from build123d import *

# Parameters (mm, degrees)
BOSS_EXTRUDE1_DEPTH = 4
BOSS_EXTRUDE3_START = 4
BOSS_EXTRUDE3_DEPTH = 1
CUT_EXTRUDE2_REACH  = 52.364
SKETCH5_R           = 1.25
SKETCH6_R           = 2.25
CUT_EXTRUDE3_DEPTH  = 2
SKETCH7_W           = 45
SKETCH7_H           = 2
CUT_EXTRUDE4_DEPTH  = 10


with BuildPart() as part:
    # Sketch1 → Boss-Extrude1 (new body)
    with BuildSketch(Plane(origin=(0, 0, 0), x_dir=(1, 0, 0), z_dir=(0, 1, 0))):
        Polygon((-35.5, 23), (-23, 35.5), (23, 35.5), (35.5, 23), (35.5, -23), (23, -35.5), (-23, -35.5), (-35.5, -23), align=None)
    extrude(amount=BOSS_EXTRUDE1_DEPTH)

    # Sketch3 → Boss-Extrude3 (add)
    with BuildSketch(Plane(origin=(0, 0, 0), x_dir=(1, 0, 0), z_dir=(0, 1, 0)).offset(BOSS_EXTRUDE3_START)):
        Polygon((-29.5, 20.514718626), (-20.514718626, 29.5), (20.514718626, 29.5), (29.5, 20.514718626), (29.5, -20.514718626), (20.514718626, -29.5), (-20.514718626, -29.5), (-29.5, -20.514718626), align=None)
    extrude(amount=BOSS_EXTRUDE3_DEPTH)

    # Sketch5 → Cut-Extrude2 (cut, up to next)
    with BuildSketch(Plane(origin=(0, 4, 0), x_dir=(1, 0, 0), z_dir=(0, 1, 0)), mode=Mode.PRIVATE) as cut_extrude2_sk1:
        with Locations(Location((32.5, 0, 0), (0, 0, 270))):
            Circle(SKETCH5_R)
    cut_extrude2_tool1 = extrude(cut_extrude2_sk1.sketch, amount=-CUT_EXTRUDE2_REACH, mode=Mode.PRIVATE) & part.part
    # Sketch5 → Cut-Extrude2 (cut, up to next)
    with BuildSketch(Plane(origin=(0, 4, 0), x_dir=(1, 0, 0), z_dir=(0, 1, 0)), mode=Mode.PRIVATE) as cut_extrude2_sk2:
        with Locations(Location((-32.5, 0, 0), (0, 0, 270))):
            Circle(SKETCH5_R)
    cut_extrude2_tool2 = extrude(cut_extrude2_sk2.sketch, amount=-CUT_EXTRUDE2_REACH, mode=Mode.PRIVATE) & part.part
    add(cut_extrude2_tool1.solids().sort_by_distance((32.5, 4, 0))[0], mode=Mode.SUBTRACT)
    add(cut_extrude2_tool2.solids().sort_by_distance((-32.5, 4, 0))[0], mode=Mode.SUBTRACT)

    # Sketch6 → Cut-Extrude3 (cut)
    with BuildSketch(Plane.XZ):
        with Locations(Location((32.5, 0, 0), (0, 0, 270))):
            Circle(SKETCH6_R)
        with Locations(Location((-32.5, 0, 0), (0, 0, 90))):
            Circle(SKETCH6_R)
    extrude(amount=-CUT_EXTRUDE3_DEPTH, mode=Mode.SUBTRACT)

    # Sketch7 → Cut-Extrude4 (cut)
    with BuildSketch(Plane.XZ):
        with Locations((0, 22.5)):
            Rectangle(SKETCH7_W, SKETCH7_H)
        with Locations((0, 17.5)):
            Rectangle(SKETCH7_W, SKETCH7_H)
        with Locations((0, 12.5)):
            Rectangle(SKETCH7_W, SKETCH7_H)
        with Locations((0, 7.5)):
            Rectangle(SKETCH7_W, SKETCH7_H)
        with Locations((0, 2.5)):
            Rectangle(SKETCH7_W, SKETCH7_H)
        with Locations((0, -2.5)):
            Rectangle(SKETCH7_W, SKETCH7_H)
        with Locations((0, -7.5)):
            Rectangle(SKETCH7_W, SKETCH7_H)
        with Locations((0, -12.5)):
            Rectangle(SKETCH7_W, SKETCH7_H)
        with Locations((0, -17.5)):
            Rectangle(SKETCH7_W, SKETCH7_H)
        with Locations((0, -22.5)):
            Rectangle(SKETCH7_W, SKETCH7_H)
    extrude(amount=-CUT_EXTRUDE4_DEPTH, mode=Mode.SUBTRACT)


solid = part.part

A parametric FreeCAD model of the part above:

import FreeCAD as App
import Part
import Sketcher
Q = App.Units.Quantity

doc = App.newDocument("Part")
body = doc.addObject("PartDesign::Body", "Body")

# Sketch on XZ plane
sketch1 = body.newObject("Sketcher::SketchObject", "Sketch")
sketch1.AttachmentSupport = (doc.getObject("XZ_Plane"), [""])
sketch1.MapMode = "FlatFace"
sketch1.addGeometry(Part.LineSegment(App.Vector(-23, -36, 0), App.Vector(-36, -23, 0)), False)
sketch1.addGeometry(Part.LineSegment(App.Vector(-36, -23, 0), App.Vector(-36, 23, 0)), False)
sketch1.addGeometry(Part.LineSegment(App.Vector(-36, 23, 0), App.Vector(-23, 36, 0)), False)
sketch1.addGeometry(Part.LineSegment(App.Vector(-23, 36, 0), App.Vector(23, 36, 0)), False)
sketch1.addGeometry(Part.LineSegment(App.Vector(23, 36, 0), App.Vector(36, 23, 0)), False)
sketch1.addGeometry(Part.LineSegment(App.Vector(36, 23, 0), App.Vector(36, -23, 0)), False)
sketch1.addGeometry(Part.LineSegment(App.Vector(36, -23, 0), App.Vector(23, -36, 0)), False)
sketch1.addGeometry(Part.LineSegment(App.Vector(23, -36, 0), App.Vector(-23, -36, 0)), False)
sketch1.addConstraint(Sketcher.Constraint("Coincident", 0, 2, 1, 1))
sketch1.addConstraint(Sketcher.Constraint("Coincident", 1, 2, 2, 1))
sketch1.addConstraint(Sketcher.Constraint("Coincident", 2, 2, 3, 1))
sketch1.addConstraint(Sketcher.Constraint("Coincident", 3, 2, 4, 1))
sketch1.addConstraint(Sketcher.Constraint("Coincident", 4, 2, 5, 1))
sketch1.addConstraint(Sketcher.Constraint("Coincident", 5, 2, 6, 1))
sketch1.addConstraint(Sketcher.Constraint("Coincident", 6, 2, 7, 1))
sketch1.addConstraint(Sketcher.Constraint("Coincident", 7, 2, 0, 1))
sketch1.addConstraint(Sketcher.Constraint("Vertical", 1))
sketch1.addConstraint(Sketcher.Constraint("Horizontal", 3))
sketch1.addConstraint(Sketcher.Constraint("Vertical", 5))
sketch1.addConstraint(Sketcher.Constraint("Horizontal", 7))
sketch1.addConstraint(Sketcher.Constraint("Symmetric", 0, 2, 4, 2, -1, 1))
sketch1.addConstraint(Sketcher.Constraint("Symmetric", 2, 2, 6, 2, -1, 1))
sketch1.addConstraint(Sketcher.Constraint("Perpendicular", 0, 2))
sketch1.addConstraint(Sketcher.Constraint("Perpendicular", 2, 4))
sketch1.addConstraint(Sketcher.Constraint("Perpendicular", 4, 6))
sketch1.addConstraint(Sketcher.Constraint("Horizontal", 1, 2, 4, 2))
sketch1.addConstraint(Sketcher.Constraint("Vertical", 3, 2, 6, 2))
sketch1.addConstraint(Sketcher.Constraint("Equal", 7, 1))
sketch1.addConstraint(Sketcher.Constraint("DistanceX", 3, 1, 3, 2, Q("46 mm")))
sketch1.addConstraint(Sketcher.Constraint("DistanceX", 1, 2, 4, 2, Q("71 mm")))
pad1 = body.newObject("PartDesign::Pad", "Pad")
pad1.Profile = sketch1
pad1.Length = 4
pad1.Reversed = True

# Sketch on XZ plane
sketch2 = body.newObject("Sketcher::SketchObject", "Sketch001")
sketch2.AttachmentSupport = (doc.getObject("XZ_Plane"), [""])
sketch2.MapMode = "FlatFace"
sketch2.AttachmentOffset = App.Placement(App.Vector(0, 0, -4), App.Rotation())
sketch2.addGeometry(Part.LineSegment(App.Vector(-21, -30, 0), App.Vector(-30, -21, 0)), False)
sketch2.addGeometry(Part.LineSegment(App.Vector(-30, -21, 0), App.Vector(-30, 21, 0)), False)
sketch2.addGeometry(Part.LineSegment(App.Vector(-30, 21, 0), App.Vector(-21, 30, 0)), False)
sketch2.addGeometry(Part.LineSegment(App.Vector(-21, 30, 0), App.Vector(21, 30, 0)), False)
sketch2.addGeometry(Part.LineSegment(App.Vector(21, 30, 0), App.Vector(30, 21, 0)), False)
sketch2.addGeometry(Part.LineSegment(App.Vector(30, 21, 0), App.Vector(30, -21, 0)), False)
sketch2.addGeometry(Part.LineSegment(App.Vector(30, -21, 0), App.Vector(21, -30, 0)), False)
sketch2.addGeometry(Part.LineSegment(App.Vector(21, -30, 0), App.Vector(-21, -30, 0)), False)
sketch2.addConstraint(Sketcher.Constraint("Coincident", 0, 2, 1, 1))
sketch2.addConstraint(Sketcher.Constraint("Coincident", 1, 2, 2, 1))
sketch2.addConstraint(Sketcher.Constraint("Coincident", 2, 2, 3, 1))
sketch2.addConstraint(Sketcher.Constraint("Coincident", 3, 2, 4, 1))
sketch2.addConstraint(Sketcher.Constraint("Coincident", 4, 2, 5, 1))
sketch2.addConstraint(Sketcher.Constraint("Coincident", 5, 2, 6, 1))
sketch2.addConstraint(Sketcher.Constraint("Coincident", 6, 2, 7, 1))
sketch2.addConstraint(Sketcher.Constraint("Coincident", 7, 2, 0, 1))
sketch2.addConstraint(Sketcher.Constraint("Vertical", 1))
sketch2.addConstraint(Sketcher.Constraint("Horizontal", 3))
sketch2.addConstraint(Sketcher.Constraint("Vertical", 5))
sketch2.addConstraint(Sketcher.Constraint("Horizontal", 7))
sketch2.addConstraint(Sketcher.Constraint("Symmetric", 0, 2, 4, 2, -1, 1))
sketch2.addConstraint(Sketcher.Constraint("Symmetric", 2, 2, 6, 2, -1, 1))
sketch2.addConstraint(Sketcher.Constraint("Perpendicular", 0, 2))
sketch2.addConstraint(Sketcher.Constraint("Perpendicular", 2, 4))
sketch2.addConstraint(Sketcher.Constraint("Perpendicular", 4, 6))
sketch2.addConstraint(Sketcher.Constraint("Horizontal", 1, 2, 4, 2))
sketch2.addConstraint(Sketcher.Constraint("Vertical", 3, 2, 6, 2))
sketch2.addConstraint(Sketcher.Constraint("Equal", 7, 1))
sketch2.addConstraint(Sketcher.Constraint("DistanceX", 1, 2, 4, 2, Q("59 mm")))
sketch2.addConstraint(Sketcher.Constraint("DistanceX", 3, 1, 3, 2, Q("41.029437 mm")))
pad2 = body.newObject("PartDesign::Pad", "Pad001")
pad2.Profile = sketch2
pad2.Length = 1
pad2.Reversed = True

# Sketch on XZ plane
sketch3 = body.newObject("Sketcher::SketchObject", "Sketch002")
sketch3.AttachmentSupport = (doc.getObject("XZ_Plane"), [""])
sketch3.MapMode = "FlatFace"
sketch3.AttachmentOffset = App.Placement(App.Vector(0, 0, -4), App.Rotation())
sketch3.addGeometry(Part.Circle(App.Vector(32.5, 0, 0), App.Vector(0, 0, 1), 1.2), False)
sketch3.addConstraint(Sketcher.Constraint("PointOnObject", 0, 3, -1))
sketch3.addConstraint(Sketcher.Constraint("Diameter", 0, Q("2.5 mm")))
sketch3.addConstraint(Sketcher.Constraint("DistanceX", -1, 1, 0, 3, Q("32.5 mm")))
pocket1 = body.newObject("PartDesign::Pocket", "Pocket")
pocket1.Profile = sketch3
pocket1.Type = "UpToFirst"
pocket1.Reversed = True

# Sketch on XZ plane
sketch4 = body.newObject("Sketcher::SketchObject", "Sketch003")
sketch4.AttachmentSupport = (doc.getObject("XZ_Plane"), [""])
sketch4.MapMode = "FlatFace"
sketch4.AttachmentOffset = App.Placement(App.Vector(0, 0, -4), App.Rotation())
sketch4.addGeometry(Part.Circle(App.Vector(-32.5, 0, 0), App.Vector(0, 0, 1), 1.2), False)
sketch4.addConstraint(Sketcher.Constraint("PointOnObject", 0, 3, -1))
sketch4.addConstraint(Sketcher.Constraint("Diameter", 0, Q("2.5 mm")))
sketch4.addConstraint(Sketcher.Constraint("DistanceX", 0, 3, -1, 1, Q("32.5 mm")))
pocket2 = body.newObject("PartDesign::Pocket", "Pocket001")
pocket2.Profile = sketch4
pocket2.Type = "UpToFirst"
pocket2.Reversed = True

# Sketch on XZ plane
sketch5 = body.newObject("Sketcher::SketchObject", "Sketch004")
sketch5.AttachmentSupport = (doc.getObject("XZ_Plane"), [""])
sketch5.MapMode = "FlatFace"
sketch5.addGeometry(Part.Circle(App.Vector(32.5, 0, 0), App.Vector(0, 0, 1), 2.2), False)
sketch5.addGeometry(Part.Circle(App.Vector(-32.5, 0, 0), App.Vector(0, 0, 1), 2.2), False)
sketch5.addConstraint(Sketcher.Constraint("Equal", 0, 1))
sketch5.addConstraint(Sketcher.Constraint("Symmetric", 0, 3, 1, 3, -1, 1))
sketch5.addConstraint(Sketcher.Constraint("PointOnObject", 0, 3, -1))
sketch5.addConstraint(Sketcher.Constraint("Diameter", 0, Q("4.5 mm")))
sketch5.addConstraint(Sketcher.Constraint("DistanceX", 1, 3, 0, 3, Q("65 mm")))
pocket3 = body.newObject("PartDesign::Pocket", "Pocket002")
pocket3.Profile = sketch5
pocket3.Length = 2

# Sketch on XZ plane
sketch6 = body.newObject("Sketcher::SketchObject", "Sketch005")
sketch6.AttachmentSupport = (doc.getObject("XZ_Plane"), [""])
sketch6.MapMode = "FlatFace"
sketch6.addGeometry(Part.LineSegment(App.Vector(-22.5, 23.5, 0), App.Vector(-22.5, 21.5, 0)), False)
sketch6.addGeometry(Part.LineSegment(App.Vector(-22.5, 21.5, 0), App.Vector(22.5, 21.5, 0)), False)
sketch6.addGeometry(Part.LineSegment(App.Vector(22.5, 21.5, 0), App.Vector(22.5, 23.5, 0)), False)
sketch6.addGeometry(Part.LineSegment(App.Vector(22.5, 23.5, 0), App.Vector(-22.5, 23.5, 0)), False)
sketch6.addGeometry(Part.LineSegment(App.Vector(-22.5, 18.5, 0), App.Vector(-22.5, 16.5, 0)), False)
sketch6.addGeometry(Part.LineSegment(App.Vector(-22.5, 16.5, 0), App.Vector(22.5, 16.5, 0)), False)
sketch6.addGeometry(Part.LineSegment(App.Vector(22.5, 16.5, 0), App.Vector(22.5, 18.5, 0)), False)
sketch6.addGeometry(Part.LineSegment(App.Vector(22.5, 18.5, 0), App.Vector(-22.5, 18.5, 0)), False)
sketch6.addGeometry(Part.LineSegment(App.Vector(-22.5, 13.5, 0), App.Vector(-22.5, 11.5, 0)), False)
sketch6.addGeometry(Part.LineSegment(App.Vector(-22.5, 11.5, 0), App.Vector(22.5, 11.5, 0)), False)
sketch6.addGeometry(Part.LineSegment(App.Vector(22.5, 11.5, 0), App.Vector(22.5, 13.5, 0)), False)
sketch6.addGeometry(Part.LineSegment(App.Vector(22.5, 13.5, 0), App.Vector(-22.5, 13.5, 0)), False)
sketch6.addGeometry(Part.LineSegment(App.Vector(-22.5, 8.5, 0), App.Vector(-22.5, 6.5, 0)), False)
sketch6.addGeometry(Part.LineSegment(App.Vector(-22.5, 6.5, 0), App.Vector(22.5, 6.5, 0)), False)
sketch6.addGeometry(Part.LineSegment(App.Vector(22.5, 6.5, 0), App.Vector(22.5, 8.5, 0)), False)
sketch6.addGeometry(Part.LineSegment(App.Vector(22.5, 8.5, 0), App.Vector(-22.5, 8.5, 0)), False)
sketch6.addGeometry(Part.LineSegment(App.Vector(-22.5, 3.5, 0), App.Vector(-22.5, 1.5, 0)), False)
sketch6.addGeometry(Part.LineSegment(App.Vector(-22.5, 1.5, 0), App.Vector(22.5, 1.5, 0)), False)
sketch6.addGeometry(Part.LineSegment(App.Vector(22.5, 1.5, 0), App.Vector(22.5, 3.5, 0)), False)
sketch6.addGeometry(Part.LineSegment(App.Vector(22.5, 3.5, 0), App.Vector(-22.5, 3.5, 0)), False)
sketch6.addGeometry(Part.LineSegment(App.Vector(-22.5, -1.5, 0), App.Vector(-22.5, -3.5, 0)), False)
sketch6.addGeometry(Part.LineSegment(App.Vector(-22.5, -3.5, 0), App.Vector(22.5, -3.5, 0)), False)
sketch6.addGeometry(Part.LineSegment(App.Vector(22.5, -3.5, 0), App.Vector(22.5, -1.5, 0)), False)
sketch6.addGeometry(Part.LineSegment(App.Vector(22.5, -1.5, 0), App.Vector(-22.5, -1.5, 0)), False)
sketch6.addGeometry(Part.LineSegment(App.Vector(-22.5, -6.5, 0), App.Vector(-22.5, -8.5, 0)), False)
sketch6.addGeometry(Part.LineSegment(App.Vector(-22.5, -8.5, 0), App.Vector(22.5, -8.5, 0)), False)
sketch6.addGeometry(Part.LineSegment(App.Vector(22.5, -8.5, 0), App.Vector(22.5, -6.5, 0)), False)
sketch6.addGeometry(Part.LineSegment(App.Vector(22.5, -6.5, 0), App.Vector(-22.5, -6.5, 0)), False)
sketch6.addGeometry(Part.LineSegment(App.Vector(-22.5, -11.5, 0), App.Vector(-22.5, -13.5, 0)), False)
sketch6.addGeometry(Part.LineSegment(App.Vector(-22.5, -13.5, 0), App.Vector(22.5, -13.5, 0)), False)
sketch6.addGeometry(Part.LineSegment(App.Vector(22.5, -13.5, 0), App.Vector(22.5, -11.5, 0)), False)
sketch6.addGeometry(Part.LineSegment(App.Vector(22.5, -11.5, 0), App.Vector(-22.5, -11.5, 0)), False)
sketch6.addGeometry(Part.LineSegment(App.Vector(-22.5, -16.5, 0), App.Vector(-22.5, -18.5, 0)), False)
sketch6.addGeometry(Part.LineSegment(App.Vector(-22.5, -18.5, 0), App.Vector(22.5, -18.5, 0)), False)
sketch6.addGeometry(Part.LineSegment(App.Vector(22.5, -18.5, 0), App.Vector(22.5, -16.5, 0)), False)
sketch6.addGeometry(Part.LineSegment(App.Vector(22.5, -16.5, 0), App.Vector(-22.5, -16.5, 0)), False)
sketch6.addGeometry(Part.LineSegment(App.Vector(-22.5, -21.5, 0), App.Vector(-22.5, -23.5, 0)), False)
sketch6.addGeometry(Part.LineSegment(App.Vector(-22.5, -23.5, 0), App.Vector(22.5, -23.5, 0)), False)
sketch6.addGeometry(Part.LineSegment(App.Vector(22.5, -23.5, 0), App.Vector(22.5, -21.5, 0)), False)
sketch6.addGeometry(Part.LineSegment(App.Vector(22.5, -21.5, 0), App.Vector(-22.5, -21.5, 0)), False)
sketch6.addConstraint(Sketcher.Constraint("Coincident", 0, 2, 1, 1))
sketch6.addConstraint(Sketcher.Constraint("Coincident", 1, 2, 2, 1))
sketch6.addConstraint(Sketcher.Constraint("Coincident", 2, 2, 3, 1))
sketch6.addConstraint(Sketcher.Constraint("Coincident", 3, 2, 0, 1))
sketch6.addConstraint(Sketcher.Constraint("Coincident", 4, 2, 5, 1))
sketch6.addConstraint(Sketcher.Constraint("Coincident", 5, 2, 6, 1))
sketch6.addConstraint(Sketcher.Constraint("Coincident", 6, 2, 7, 1))
sketch6.addConstraint(Sketcher.Constraint("Coincident", 7, 2, 4, 1))
sketch6.addConstraint(Sketcher.Constraint("Coincident", 8, 2, 9, 1))
sketch6.addConstraint(Sketcher.Constraint("Coincident", 9, 2, 10, 1))
sketch6.addConstraint(Sketcher.Constraint("Coincident", 10, 2, 11, 1))
sketch6.addConstraint(Sketcher.Constraint("Coincident", 11, 2, 8, 1))
sketch6.addConstraint(Sketcher.Constraint("Coincident", 12, 2, 13, 1))
sketch6.addConstraint(Sketcher.Constraint("Coincident", 13, 2, 14, 1))
sketch6.addConstraint(Sketcher.Constraint("Coincident", 14, 2, 15, 1))
sketch6.addConstraint(Sketcher.Constraint("Coincident", 15, 2, 12, 1))
sketch6.addConstraint(Sketcher.Constraint("Coincident", 16, 2, 17, 1))
sketch6.addConstraint(Sketcher.Constraint("Coincident", 17, 2, 18, 1))
sketch6.addConstraint(Sketcher.Constraint("Coincident", 18, 2, 19, 1))
sketch6.addConstraint(Sketcher.Constraint("Coincident", 19, 2, 16, 1))
sketch6.addConstraint(Sketcher.Constraint("Coincident", 20, 2, 21, 1))
sketch6.addConstraint(Sketcher.Constraint("Coincident", 21, 2, 22, 1))
sketch6.addConstraint(Sketcher.Constraint("Coincident", 22, 2, 23, 1))
sketch6.addConstraint(Sketcher.Constraint("Coincident", 23, 2, 20, 1))
sketch6.addConstraint(Sketcher.Constraint("Coincident", 24, 2, 25, 1))
sketch6.addConstraint(Sketcher.Constraint("Coincident", 25, 2, 26, 1))
sketch6.addConstraint(Sketcher.Constraint("Coincident", 26, 2, 27, 1))
sketch6.addConstraint(Sketcher.Constraint("Coincident", 27, 2, 24, 1))
sketch6.addConstraint(Sketcher.Constraint("Coincident", 28, 2, 29, 1))
sketch6.addConstraint(Sketcher.Constraint("Coincident", 29, 2, 30, 1))
sketch6.addConstraint(Sketcher.Constraint("Coincident", 30, 2, 31, 1))
sketch6.addConstraint(Sketcher.Constraint("Coincident", 31, 2, 28, 1))
sketch6.addConstraint(Sketcher.Constraint("Coincident", 32, 2, 33, 1))
sketch6.addConstraint(Sketcher.Constraint("Coincident", 33, 2, 34, 1))
sketch6.addConstraint(Sketcher.Constraint("Coincident", 34, 2, 35, 1))
sketch6.addConstraint(Sketcher.Constraint("Coincident", 35, 2, 32, 1))
sketch6.addConstraint(Sketcher.Constraint("Coincident", 36, 2, 37, 1))
sketch6.addConstraint(Sketcher.Constraint("Coincident", 37, 2, 38, 1))
sketch6.addConstraint(Sketcher.Constraint("Coincident", 38, 2, 39, 1))
sketch6.addConstraint(Sketcher.Constraint("Coincident", 39, 2, 36, 1))
sketch6.addConstraint(Sketcher.Constraint("Vertical", 0))
sketch6.addConstraint(Sketcher.Constraint("Horizontal", 1))
sketch6.addConstraint(Sketcher.Constraint("Vertical", 2))
sketch6.addConstraint(Sketcher.Constraint("Horizontal", 3))
sketch6.addConstraint(Sketcher.Constraint("Vertical", 4))
sketch6.addConstraint(Sketcher.Constraint("Horizontal", 5))
sketch6.addConstraint(Sketcher.Constraint("Vertical", 6))
sketch6.addConstraint(Sketcher.Constraint("Horizontal", 7))
sketch6.addConstraint(Sketcher.Constraint("Vertical", 8))
sketch6.addConstraint(Sketcher.Constraint("Horizontal", 9))
sketch6.addConstraint(Sketcher.Constraint("Vertical", 10))
sketch6.addConstraint(Sketcher.Constraint("Horizontal", 11))
sketch6.addConstraint(Sketcher.Constraint("Vertical", 12))
sketch6.addConstraint(Sketcher.Constraint("Horizontal", 13))
sketch6.addConstraint(Sketcher.Constraint("Vertical", 14))
sketch6.addConstraint(Sketcher.Constraint("Horizontal", 15))
sketch6.addConstraint(Sketcher.Constraint("Vertical", 16))
sketch6.addConstraint(Sketcher.Constraint("Horizontal", 17))
sketch6.addConstraint(Sketcher.Constraint("Vertical", 18))
sketch6.addConstraint(Sketcher.Constraint("Horizontal", 19))
sketch6.addConstraint(Sketcher.Constraint("Vertical", 20))
sketch6.addConstraint(Sketcher.Constraint("Horizontal", 21))
sketch6.addConstraint(Sketcher.Constraint("Vertical", 22))
sketch6.addConstraint(Sketcher.Constraint("Horizontal", 23))
sketch6.addConstraint(Sketcher.Constraint("Vertical", 24))
sketch6.addConstraint(Sketcher.Constraint("Horizontal", 25))
sketch6.addConstraint(Sketcher.Constraint("Vertical", 26))
sketch6.addConstraint(Sketcher.Constraint("Horizontal", 27))
sketch6.addConstraint(Sketcher.Constraint("Vertical", 28))
sketch6.addConstraint(Sketcher.Constraint("Horizontal", 29))
sketch6.addConstraint(Sketcher.Constraint("Vertical", 30))
sketch6.addConstraint(Sketcher.Constraint("Horizontal", 31))
sketch6.addConstraint(Sketcher.Constraint("Vertical", 32))
sketch6.addConstraint(Sketcher.Constraint("Horizontal", 33))
sketch6.addConstraint(Sketcher.Constraint("Vertical", 34))
sketch6.addConstraint(Sketcher.Constraint("Horizontal", 35))
sketch6.addConstraint(Sketcher.Constraint("Vertical", 36))
sketch6.addConstraint(Sketcher.Constraint("Horizontal", 37))
sketch6.addConstraint(Sketcher.Constraint("Vertical", 38))
sketch6.addConstraint(Sketcher.Constraint("Horizontal", 39))
sketch6.addConstraint(Sketcher.Constraint("Symmetric", 18, 2, 20, 2, -1, 1))
sketch6.addConstraint(Sketcher.Constraint("Symmetric", 16, 2, 22, 2, -1, 1))
sketch6.addConstraint(Sketcher.Constraint("Symmetric", 14, 2, 24, 2, -1, 1))
sketch6.addConstraint(Sketcher.Constraint("Symmetric", 12, 2, 26, 2, -1, 1))
sketch6.addConstraint(Sketcher.Constraint("Symmetric", 10, 2, 28, 2, -1, 1))
sketch6.addConstraint(Sketcher.Constraint("Symmetric", 8, 2, 30, 2, -1, 1))
sketch6.addConstraint(Sketcher.Constraint("Symmetric", 6, 2, 32, 2, -1, 1))
sketch6.addConstraint(Sketcher.Constraint("Symmetric", 4, 2, 34, 2, -1, 1))
sketch6.addConstraint(Sketcher.Constraint("Symmetric", 2, 2, 36, 2, -1, 1))
sketch6.addConstraint(Sketcher.Constraint("Symmetric", 0, 2, 38, 2, -1, 1))
sketch6.addConstraint(Sketcher.Constraint("Vertical", 3, 2, 4, 2))
sketch6.addConstraint(Sketcher.Constraint("Vertical", 2, 2, 5, 2))
sketch6.addConstraint(Sketcher.Constraint("Vertical", 7, 2, 8, 2))
sketch6.addConstraint(Sketcher.Constraint("Vertical", 6, 2, 9, 2))
sketch6.addConstraint(Sketcher.Constraint("Vertical", 11, 2, 12, 2))
sketch6.addConstraint(Sketcher.Constraint("Vertical", 10, 2, 13, 2))
sketch6.addConstraint(Sketcher.Constraint("Vertical", 15, 2, 16, 2))
sketch6.addConstraint(Sketcher.Constraint("Vertical", 14, 2, 17, 2))
sketch6.addConstraint(Sketcher.Constraint("Vertical", 19, 2, 20, 2))
sketch6.addConstraint(Sketcher.Constraint("Equal", 2, 4))
sketch6.addConstraint(Sketcher.Constraint("Equal", 6, 8))
sketch6.addConstraint(Sketcher.Constraint("Equal", 10, 12))
sketch6.addConstraint(Sketcher.Constraint("Equal", 14, 16))
sketch6.addConstraint(Sketcher.Constraint("DistanceX", 1, 1, 1, 2, Q("45 mm")))
sketch6.addConstraint(Sketcher.Constraint("DistanceY", 0, 2, 0, 1, Q("2 mm")))
sketch6.addConstraint(Sketcher.Constraint("DistanceY", 4, 2, 0, 2, Q("5 mm")))
sketch6.addConstraint(Sketcher.Constraint("DistanceY", 8, 2, 4, 2, Q("5 mm")))
sketch6.addConstraint(Sketcher.Constraint("DistanceY", 12, 2, 8, 2, Q("5 mm")))
sketch6.addConstraint(Sketcher.Constraint("DistanceY", 16, 2, 12, 2, Q("5 mm")))
sketch6.addConstraint(Sketcher.Constraint("DistanceY", 20, 2, 16, 2, Q("5 mm")))
pocket4 = body.newObject("PartDesign::Pocket", "Pocket003")
pocket4.Profile = sketch6
pocket4.Length = 10

doc.recompute()
